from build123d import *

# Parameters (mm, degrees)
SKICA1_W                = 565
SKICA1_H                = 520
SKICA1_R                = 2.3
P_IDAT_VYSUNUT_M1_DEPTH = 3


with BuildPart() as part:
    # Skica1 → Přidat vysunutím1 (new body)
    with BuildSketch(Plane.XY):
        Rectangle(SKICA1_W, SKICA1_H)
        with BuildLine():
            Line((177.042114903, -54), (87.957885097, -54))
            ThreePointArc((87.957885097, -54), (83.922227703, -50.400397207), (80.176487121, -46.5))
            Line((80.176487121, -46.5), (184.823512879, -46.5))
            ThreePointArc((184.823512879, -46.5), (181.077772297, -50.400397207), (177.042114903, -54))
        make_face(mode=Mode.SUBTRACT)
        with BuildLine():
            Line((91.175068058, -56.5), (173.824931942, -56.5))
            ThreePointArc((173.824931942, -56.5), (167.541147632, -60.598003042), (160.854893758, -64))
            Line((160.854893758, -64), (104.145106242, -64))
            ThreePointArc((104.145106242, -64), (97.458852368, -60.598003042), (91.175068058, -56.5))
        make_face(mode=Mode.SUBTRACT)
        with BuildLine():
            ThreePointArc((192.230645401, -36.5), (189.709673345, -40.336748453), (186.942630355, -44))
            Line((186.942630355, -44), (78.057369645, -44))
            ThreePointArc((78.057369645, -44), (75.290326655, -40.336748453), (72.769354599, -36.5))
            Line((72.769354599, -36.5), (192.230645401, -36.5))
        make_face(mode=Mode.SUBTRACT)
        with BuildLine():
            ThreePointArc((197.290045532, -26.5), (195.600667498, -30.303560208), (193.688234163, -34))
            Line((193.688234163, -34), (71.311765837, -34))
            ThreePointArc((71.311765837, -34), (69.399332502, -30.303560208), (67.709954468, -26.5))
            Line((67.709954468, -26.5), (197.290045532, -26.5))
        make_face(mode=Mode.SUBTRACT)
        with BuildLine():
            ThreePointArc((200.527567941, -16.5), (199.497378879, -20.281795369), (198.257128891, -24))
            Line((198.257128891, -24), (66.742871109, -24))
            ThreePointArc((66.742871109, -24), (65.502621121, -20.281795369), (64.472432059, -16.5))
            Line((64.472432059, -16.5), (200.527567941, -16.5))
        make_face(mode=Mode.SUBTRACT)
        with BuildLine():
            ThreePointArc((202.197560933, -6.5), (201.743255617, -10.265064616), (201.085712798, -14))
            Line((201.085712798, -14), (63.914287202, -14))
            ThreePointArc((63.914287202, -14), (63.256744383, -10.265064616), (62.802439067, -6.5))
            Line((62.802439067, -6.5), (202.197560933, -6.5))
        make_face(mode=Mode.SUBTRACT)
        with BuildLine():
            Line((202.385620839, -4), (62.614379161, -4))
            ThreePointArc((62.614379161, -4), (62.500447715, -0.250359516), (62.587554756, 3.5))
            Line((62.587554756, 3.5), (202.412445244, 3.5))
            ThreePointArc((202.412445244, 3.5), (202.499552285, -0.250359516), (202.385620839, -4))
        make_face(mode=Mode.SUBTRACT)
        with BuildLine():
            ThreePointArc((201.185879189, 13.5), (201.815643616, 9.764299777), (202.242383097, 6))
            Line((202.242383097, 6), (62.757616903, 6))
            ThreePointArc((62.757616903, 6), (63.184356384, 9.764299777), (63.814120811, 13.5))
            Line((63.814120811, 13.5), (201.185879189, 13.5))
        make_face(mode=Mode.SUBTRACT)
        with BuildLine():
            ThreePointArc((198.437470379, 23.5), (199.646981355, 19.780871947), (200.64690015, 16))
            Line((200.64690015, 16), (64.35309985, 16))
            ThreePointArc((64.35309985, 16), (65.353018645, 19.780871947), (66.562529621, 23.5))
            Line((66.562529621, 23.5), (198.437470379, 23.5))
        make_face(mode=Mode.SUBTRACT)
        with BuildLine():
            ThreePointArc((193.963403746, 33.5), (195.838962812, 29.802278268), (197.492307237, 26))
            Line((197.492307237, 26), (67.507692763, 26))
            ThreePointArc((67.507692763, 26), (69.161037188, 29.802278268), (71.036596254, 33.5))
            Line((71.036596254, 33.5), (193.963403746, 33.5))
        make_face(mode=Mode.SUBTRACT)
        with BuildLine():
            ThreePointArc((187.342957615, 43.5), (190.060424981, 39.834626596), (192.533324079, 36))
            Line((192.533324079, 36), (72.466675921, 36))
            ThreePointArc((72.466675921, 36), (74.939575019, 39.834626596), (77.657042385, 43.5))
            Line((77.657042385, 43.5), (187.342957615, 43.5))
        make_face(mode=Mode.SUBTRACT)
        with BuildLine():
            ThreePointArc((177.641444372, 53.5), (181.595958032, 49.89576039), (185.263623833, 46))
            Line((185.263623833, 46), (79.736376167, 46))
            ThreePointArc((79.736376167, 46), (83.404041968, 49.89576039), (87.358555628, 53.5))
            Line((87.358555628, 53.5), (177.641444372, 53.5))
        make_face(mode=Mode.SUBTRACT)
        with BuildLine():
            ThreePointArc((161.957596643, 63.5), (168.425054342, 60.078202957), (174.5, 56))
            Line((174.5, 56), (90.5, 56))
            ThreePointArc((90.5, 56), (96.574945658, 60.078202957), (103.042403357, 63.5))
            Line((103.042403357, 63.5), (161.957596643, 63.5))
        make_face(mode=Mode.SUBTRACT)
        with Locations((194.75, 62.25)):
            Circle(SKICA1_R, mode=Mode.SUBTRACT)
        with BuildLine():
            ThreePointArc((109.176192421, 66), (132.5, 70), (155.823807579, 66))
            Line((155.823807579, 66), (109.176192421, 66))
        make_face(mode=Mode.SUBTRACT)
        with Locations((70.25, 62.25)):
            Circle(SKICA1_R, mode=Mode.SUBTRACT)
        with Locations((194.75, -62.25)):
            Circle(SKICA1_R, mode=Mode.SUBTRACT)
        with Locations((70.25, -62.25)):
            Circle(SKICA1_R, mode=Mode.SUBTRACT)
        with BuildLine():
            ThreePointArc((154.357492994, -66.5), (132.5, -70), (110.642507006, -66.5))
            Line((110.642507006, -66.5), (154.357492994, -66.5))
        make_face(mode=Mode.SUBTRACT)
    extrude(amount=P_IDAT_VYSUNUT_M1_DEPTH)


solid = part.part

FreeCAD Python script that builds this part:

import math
import FreeCAD as App
import Part
import Sketcher

V = App.Vector

doc = App.newDocument("Part")
body = doc.addObject("PartDesign::Body", "Body")

# Sketch on XY plane
sketch1 = body.newObject("Sketcher::SketchObject", "Sketch")
sketch1.AttachmentSupport = (doc.getObject("XY_Plane"), [""])
sketch1.MapMode = "FlatFace"
sketch1.addGeometry([
    Part.LineSegment(V(-282.5, 260, 0), V(-282.5, -260, 0)),  # 0
    Part.LineSegment(V(-282.5, -260, 0), V(282.5, -260, 0)),  # 1
    Part.LineSegment(V(282.5, -260, 0), V(282.5, 260, 0)),  # 2
    Part.LineSegment(V(282.5, 260, 0), V(-282.5, 260, 0)),  # 3
    Part.Circle(V(70.2, -62.2, 0), V(0, 0, 1), 2.3),  # 4
    Part.LineSegment(V(110.6, -66.5, 0), V(154.4, -66.5, 0)),  # 5
    Part.ArcOfCircle(Part.Circle(V(132.5, 0, 0), V(0, 0, 1), 70), math.radians(-108), math.radians(-72)),  # 6
    Part.ArcOfCircle(Part.Circle(V(132.5, 0, 0), V(0, 0, 1), 70), math.radians(-126.18), math.radians(-113.9)),  # 7
    Part.LineSegment(V(91.2, -56.5, 0), V(173.8, -56.5, 0)),  # 8
    Part.ArcOfCircle(Part.Circle(V(132.5, 0, 0), V(0, 0, 1), 70), math.radians(-66.1), math.radians(-53.82)),  # 9
    Part.LineSegment(V(160.9, -64, 0), V(104.1, -64, 0)),  # 10
    Part.ArcOfCircle(Part.Circle(V(132.5, 0, 0), V(0, 0, 1), 70), math.radians(-50.48), math.radians(-41.63)),  # 11
    Part.LineSegment(V(177, -54, 0), V(88, -54, 0)),  # 12
    Part.ArcOfCircle(Part.Circle(V(132.5, 0, 0), V(0, 0, 1), 70), math.radians(-138.37), math.radians(-129.52)),  # 13
    Part.LineSegment(V(80.2, -46.5, 0), V(184.8, -46.5, 0)),  # 14
    Part.LineSegment(V(72.8, -36.5, 0), V(192.2, -36.5, 0)),  # 15
    Part.ArcOfCircle(Part.Circle(V(132.5, 0, 0), V(0, 0, 1), 70), math.radians(-38.94), math.radians(-31.43)),  # 16
    Part.LineSegment(V(186.9, -44, 0), V(78.1, -44, 0)),  # 17
    Part.ArcOfCircle(Part.Circle(V(132.5, 0, 0), V(0, 0, 1), 70), math.radians(-148.57), math.radians(-141.06)),  # 18
    Part.LineSegment(V(67.7, -26.5, 0), V(197.3, -26.5, 0)),  # 19
    Part.ArcOfCircle(Part.Circle(V(132.5, 0, 0), V(0, 0, 1), 70), math.radians(-29.06), math.radians(-22.25)),  # 20
    Part.LineSegment(V(193.7, -34, 0), V(71.3, -34, 0)),  # 21
    Part.ArcOfCircle(Part.Circle(V(132.5, 0, 0), V(0, 0, 1), 70), math.radians(-157.75), math.radians(-150.94)),  # 22
    Part.LineSegment(V(64.5, -16.5, 0), V(200.5, -16.5, 0)),  # 23
    Part.ArcOfCircle(Part.Circle(V(132.5, 0, 0), V(0, 0, 1), 70), math.radians(-20.05), math.radians(-13.63)),  # 24
    Part.LineSegment(V(198.3, -24, 0), V(66.7, -24, 0)),  # 25
    Part.ArcOfCircle(Part.Circle(V(132.5, 0, 0), V(0, 0, 1), 70), math.radians(-166.37), math.radians(-159.95)),  # 26
    Part.LineSegment(V(62.8, -6.5, 0), V(202.2, -6.5, 0)),  # 27
    Part.ArcOfCircle(Part.Circle(V(132.5, 0, 0), V(0, 0, 1), 70), math.radians(-11.54), math.radians(-5.33)),  # 28
    Part.LineSegment(V(201.1, -14, 0), V(63.9, -14, 0)),  # 29
    Part.ArcOfCircle(Part.Circle(V(132.5, 0, 0), V(0, 0, 1), 70), math.radians(-174.67), math.radians(-168.46)),  # 30
    Part.ArcOfCircle(Part.Circle(V(132.5, 0, 0), V(0, 0, 1), 70), math.radians(-3.28), math.radians(2.87)),  # 31
    Part.LineSegment(V(202.4, -4, 0), V(62.6, -4, 0)),  # 32
    Part.ArcOfCircle(Part.Circle(V(132.5, 0, 0), V(0, 0, 1), 70), math.radians(177.13), math.radians(183.28)),  # 33
    Part.LineSegment(V(62.6, 3.5, 0), V(202.4, 3.5, 0)),  # 34
    Part.Circle(V(194.8, -62.2, 0), V(0, 0, 1), 2.3),  # 35
    Part.LineSegment(V(63.8, 13.5, 0), V(201.2, 13.5, 0)),  # 36
    Part.ArcOfCircle(Part.Circle(V(132.5, 0, 0), V(0, 0, 1), 70), math.radians(4.92), math.radians(11.12)),  # 37
    Part.LineSegment(V(202.2, 6, 0), V(62.8, 6, 0)),  # 38
    Part.ArcOfCircle(Part.Circle(V(132.5, 0, 0), V(0, 0, 1), 70), math.radians(168.88), math.radians(175.08)),  # 39
    Part.LineSegment(V(66.6, 23.5, 0), V(198.4, 23.5, 0)),  # 40
    Part.ArcOfCircle(Part.Circle(V(132.5, 0, 0), V(0, 0, 1), 70), math.radians(13.21), math.radians(19.62)),  # 41
    Part.LineSegment(V(200.6, 16, 0), V(64.4, 16, 0)),  # 42
    Part.ArcOfCircle(Part.Circle(V(132.5, 0, 0), V(0, 0, 1), 70), math.radians(160.38), math.radians(166.79)),  # 43
    Part.LineSegment(V(71, 33.5, 0), V(194, 33.5, 0)),  # 44
    Part.ArcOfCircle(Part.Circle(V(132.5, 0, 0), V(0, 0, 1), 70), math.radians(21.8), math.radians(28.59)),  # 45
    Part.LineSegment(V(197.5, 26, 0), V(67.5, 26, 0)),  # 46
    Part.ArcOfCircle(Part.Circle(V(132.5, 0, 0), V(0, 0, 1), 70), math.radians(151.41), math.radians(158.2)),  # 47
    Part.Circle(V(70.2, 62.2, 0), V(0, 0, 1), 2.3),  # 48
    Part.LineSegment(V(77.7, 43.5, 0), V(187.3, 43.5, 0)),  # 49
    Part.ArcOfCircle(Part.Circle(V(132.5, 0, 0), V(0, 0, 1), 70), math.radians(30.95), math.radians(38.42)),  # 50
    Part.LineSegment(V(192.5, 36, 0), V(72.5, 36, 0)),  # 51
    Part.ArcOfCircle(Part.Circle(V(132.5, 0, 0), V(0, 0, 1), 70), math.radians(141.58), math.radians(149.05)),  # 52
    Part.LineSegment(V(87.4, 53.5, 0), V(177.6, 53.5, 0)),  # 53
    Part.ArcOfCircle(Part.Circle(V(132.5, 0, 0), V(0, 0, 1), 70), math.radians(41.08), math.radians(49.84)),  # 54
    Part.LineSegment(V(185.3, 46, 0), V(79.7, 46, 0)),  # 55
    Part.ArcOfCircle(Part.Circle(V(132.5, 0, 0), V(0, 0, 1), 70), math.radians(130.16), math.radians(138.92)),  # 56
    Part.LineSegment(V(103, 63.5, 0), V(162, 63.5, 0)),  # 57
    Part.ArcOfCircle(Part.Circle(V(132.5, 0, 0), V(0, 0, 1), 70), math.radians(53.13), math.radians(65.11)),  # 58
    Part.LineSegment(V(174.5, 56, 0), V(90.5, 56, 0)),  # 59
    Part.ArcOfCircle(Part.Circle(V(132.5, 0, 0), V(0, 0, 1), 70), math.radians(114.89), math.radians(126.87)),  # 60
    Part.LineSegment(V(155.8, 66, 0), V(109.2, 66, 0)),  # 61
    Part.ArcOfCircle(Part.Circle(V(132.5, 0, 0), V(0, 0, 1), 70), math.radians(71), math.radians(109)),  # 62
    Part.Circle(V(194.8, 62.2, 0), V(0, 0, 1), 2.3),  # 63
], False)
sketch1.addConstraint([
    Sketcher.Constraint("Coincident", 0, 2, 1, 1),
    Sketcher.Constraint("Coincident", 1, 2, 2, 1),
    Sketcher.Constraint("Coincident", 2, 2, 3, 1),
    Sketcher.Constraint("Coincident", 3, 2, 0, 1),
    Sketcher.Constraint("Coincident", 5, 1, 6, 1),
    Sketcher.Constraint("Coincident", 6, 2, 5, 2),
    Sketcher.Constraint("Coincident", 7, 1, 8, 1),
    Sketcher.Constraint("Coincident", 8, 2, 9, 2),
    Sketcher.Constraint("Coincident", 9, 1, 10, 1),
    Sketcher.Constraint("Coincident", 10, 2, 7, 2),
    Sketcher.Constraint("Coincident", 11, 1, 12, 1),
    Sketcher.Constraint("Coincident", 12, 2, 13, 2),
    Sketcher.Constraint("Coincident", 13, 1, 14, 1),
    Sketcher.Constraint("Coincident", 14, 2, 11, 2),
    Sketcher.Constraint("Coincident", 15, 2, 16, 2),
    Sketcher.Constraint("Coincident", 16, 1, 17, 1),
    Sketcher.Constraint("Coincident", 17, 2, 18, 2),
    Sketcher.Constraint("Coincident", 18, 1, 15, 1),
    Sketcher.Constraint("Coincident", 19, 2, 20, 2),
    Sketcher.Constraint("Coincident", 20, 1, 21, 1),
    Sketcher.Constraint("Coincident", 21, 2, 22, 2),
    Sketcher.Constraint("Coincident", 22, 1, 19, 1),
    Sketcher.Constraint("Coincident", 23, 2, 24, 2),
    Sketcher.Constraint("Coincident", 24, 1, 25, 1),
    Sketcher.Constraint("Coincident", 25, 2, 26, 2),
    Sketcher.Constraint("Coincident", 26, 1, 23, 1),
    Sketcher.Constraint("Coincident", 27, 2, 28, 2),
    Sketcher.Constraint("Coincident", 28, 1, 29, 1),
    Sketcher.Constraint("Coincident", 29, 2, 30, 2),
    Sketcher.Constraint("Coincident", 30, 1, 27, 1),
    Sketcher.Constraint("Coincident", 31, 1, 32, 1),
    Sketcher.Constraint("Coincident", 32, 2, 33, 2),
    Sketcher.Constraint("Coincident", 33, 1, 34, 1),
    Sketcher.Constraint("Coincident", 34, 2, 31, 2),
    Sketcher.Constraint("Coincident", 36, 2, 37, 2),
    Sketcher.Constraint("Coincident", 37, 1, 38, 1),
    Sketcher.Constraint("Coincident", 38, 2, 39, 2),
    Sketcher.Constraint("Coincident", 39, 1, 36, 1),
    Sketcher.Constraint("Coincident", 40, 2, 41, 2),
    Sketcher.Constraint("Coincident", 41, 1, 42, 1),
    Sketcher.Constraint("Coincident", 42, 2, 43, 2),
    Sketcher.Constraint("Coincident", 43, 1, 40, 1),
    Sketcher.Constraint("Coincident", 44, 2, 45, 2),
    Sketcher.Constraint("Coincident", 45, 1, 46, 1),
    Sketcher.Constraint("Coincident", 46, 2, 47, 2),
    Sketcher.Constraint("Coincident", 47, 1, 44, 1),
    Sketcher.Constraint("Coincident", 49, 2, 50, 2),
    Sketcher.Constraint("Coincident", 50, 1, 51, 1),
    Sketcher.Constraint("Coincident", 51, 2, 52, 2),
    Sketcher.Constraint("Coincident", 52, 1, 49, 1),
    Sketcher.Constraint("Coincident", 53, 2, 54, 2),
    Sketcher.Constraint("Coincident", 54, 1, 55, 1),
    Sketcher.Constraint("Coincident", 55, 2, 56, 2),
    Sketcher.Constraint("Coincident", 56, 1, 53, 1),
    Sketcher.Constraint("Coincident", 57, 2, 58, 2),
    Sketcher.Constraint("Coincident", 58, 1, 59, 1),
    Sketcher.Constraint("Coincident", 59, 2, 60, 2),
    Sketcher.Constraint("Coincident", 60, 1, 57, 1),
    Sketcher.Constraint("Coincident", 61, 1, 62, 1),
    Sketcher.Constraint("Coincident", 62, 2, 61, 2),
    Sketcher.Constraint("Vertical", 0),
    Sketcher.Constraint("Horizontal", 1),
    Sketcher.Constraint("Vertical", 2),
    Sketcher.Constraint("Horizontal", 3),
    Sketcher.Constraint("Horizontal", 5),
    Sketcher.Constraint("Horizontal", 8),
    Sketcher.Constraint("Horizontal", 10),
    Sketcher.Constraint("Horizontal", 12),
    Sketcher.Constraint("Horizontal", 14),
    Sketcher.Constraint("Horizontal", 15),
    Sketcher.Constraint("Horizontal", 17),
    Sketcher.Constraint("Horizontal", 19),
    Sketcher.Constraint("Horizontal", 21),
    Sketcher.Constraint("Horizontal", 23),
    Sketcher.Constraint("Horizontal", 25),
    Sketcher.Constraint("Horizontal", 27),
    Sketcher.Constraint("Horizontal", 29),
    Sketcher.Constraint("Horizontal", 32),
    Sketcher.Constraint("Horizontal", 34),
    Sketcher.Constraint("Horizontal", 36),
    Sketcher.Constraint("Horizontal", 38),
    Sketcher.Constraint("Horizontal", 40),
    Sketcher.Constraint("Horizontal", 42),
    Sketcher.Constraint("Horizontal", 44),
    Sketcher.Constraint("Horizontal", 46),
    Sketcher.Constraint("Horizontal", 49),
    Sketcher.Constraint("Horizontal", 51),
    Sketcher.Constraint("Horizontal", 53),
    Sketcher.Constraint("Horizontal", 55),
    Sketcher.Constraint("Horizontal", 57),
    Sketcher.Constraint("Horizontal", 59),
    Sketcher.Constraint("Horizontal", 61),
    Sketcher.Constraint("Coincident", 7, 3, 6, 3),
    Sketcher.Constraint("Coincident", 9, 3, 6, 3),
    Sketcher.Constraint("Coincident", 11, 3, 6, 3),
    Sketcher.Constraint("Coincident", 13, 3, 6, 3),
    Sketcher.Constraint("Coincident", 16, 3, 6, 3),
    Sketcher.Constraint("Coincident", 18, 3, 6, 3),
    Sketcher.Constraint("Coincident", 20, 3, 6, 3),
    Sketcher.Constraint("Coincident", 22, 3, 6, 3),
    Sketcher.Constraint("Coincident", 24, 3, 6, 3),
    Sketcher.Constraint("Coincident", 26, 3, 6, 3),
    Sketcher.Constraint("Coincident", 28, 3, 6, 3),
    Sketcher.Constraint("Coincident", 30, 3, 6, 3),
    Sketcher.Constraint("Coincident", 31, 3, 6, 3),
    Sketcher.Constraint("Coincident", 33, 3, 6, 3),
    Sketcher.Constraint("Coincident", 37, 3, 6, 3),
    Sketcher.Constraint("Coincident", 39, 3, 6, 3),
    Sketcher.Constraint("Coincident", 41, 3, 6, 3),
    Sketcher.Constraint("Coincident", 43, 3, 6, 3),
    Sketcher.Constraint("Coincident", 45, 3, 6, 3),
    Sketcher.Constraint("Coincident", 47, 3, 6, 3),
    Sketcher.Constraint("Coincident", 50, 3, 6, 3),
    Sketcher.Constraint("Coincident", 52, 3, 6, 3),
    Sketcher.Constraint("Coincident", 54, 3, 6, 3),
    Sketcher.Constraint("Coincident", 56, 3, 6, 3),
    Sketcher.Constraint("Coincident", 58, 3, 6, 3),
    Sketcher.Constraint("Coincident", 60, 3, 6, 3),
    Sketcher.Constraint("Coincident", 62, 3, 6, 3),
    Sketcher.Constraint("Equal", 6, 7),
    Sketcher.Constraint("Equal", 7, 9),
    Sketcher.Constraint("Equal", 9, 11),
    Sketcher.Constraint("Equal", 11, 13),
    Sketcher.Constraint("Equal", 13, 16),
    Sketcher.Constraint("Equal", 16, 18),
    Sketcher.Constraint("Equal", 18, 20),
    Sketcher.Constraint("Equal", 20, 22),
    Sketcher.Constraint("Equal", 22, 24),
    Sketcher.Constraint("Equal", 24, 26),
    Sketcher.Constraint("Equal", 26, 28),
    Sketcher.Constraint("Equal", 28, 30),
    Sketcher.Constraint("Equal", 30, 31),
    Sketcher.Constraint("Equal", 31, 33),
    Sketcher.Constraint("Equal", 4, 35),
    Sketcher.Constraint("Equal", 33, 37),
    Sketcher.Constraint("Equal", 37, 39),
    Sketcher.Constraint("Equal", 39, 41),
    Sketcher.Constraint("Equal", 41, 43),
    Sketcher.Constraint("Equal", 43, 45),
    Sketcher.Constraint("Equal", 45, 47),
    Sketcher.Constraint("Equal", 35, 48),
    Sketcher.Constraint("Equal", 47, 50),
    Sketcher.Constraint("Equal", 50, 52),
    Sketcher.Constraint("Equal", 52, 54),
    Sketcher.Constraint("Equal", 54, 56),
    Sketcher.Constraint("Equal", 56, 58),
    Sketcher.Constraint("Equal", 58, 60),
    Sketcher.Constraint("Equal", 60, 62),
    Sketcher.Constraint("Equal", 48, 63),
    Sketcher.Constraint("Symmetric", 0, 2, 2, 2, -1, 1),
    Sketcher.Constraint("Symmetric", 4, 3, 48, 3, -1),
    Sketcher.Constraint("Symmetric", 35, 3, 63, 3, -1),
    Sketcher.Constraint("PointOnObject", 6, 3, -1),
    Sketcher.Constraint("Horizontal", 4, 3, 35, 3),
    Sketcher.Constraint("Radius", 6, 70.0),
    Sketcher.Constraint("Diameter", 4, 4.6),
    Sketcher.Constraint("DistanceX", 1, 1, 1, 2, 565.0),
    Sketcher.Constraint("DistanceX", 59, 2, 59, 1, 84.0),
    Sketcher.Constraint("DistanceY", 0, 2, 0, 1, 520.0),
    Sketcher.Constraint("DistanceY", 9, 1, -1, 1, 64.0),
    Sketcher.Constraint("DistanceY", 11, 1, -1, 1, 54.0),
    Sketcher.Constraint("DistanceY", 16, 1, -1, 1, 44.0),
    Sketcher.Constraint("DistanceY", 20, 1, -1, 1, 34.0),
    Sketcher.Constraint("DistanceY", 24, 1, -1, 1, 24.0),
    Sketcher.Constraint("DistanceY", 28, 1, -1, 1, 14.0),
    Sketcher.Constraint("DistanceY", 31, 1, -1, 1, 4.0),
    Sketcher.Constraint("DistanceY", -1, 1, 37, 1, 6.0),
    Sketcher.Constraint("DistanceY", -1, 1, 41, 1, 16.0),
    Sketcher.Constraint("DistanceY", -1, 1, 45, 1, 26.0),
    Sketcher.Constraint("DistanceY", -1, 1, 50, 1, 36.0),
    Sketcher.Constraint("DistanceY", -1, 1, 54, 1, 46.0),
    Sketcher.Constraint("DistanceY", -1, 1, 61, 1, 66.0),
    Sketcher.Constraint("DistanceX", -1, 1, 6, 3, 132.5),
    Sketcher.Constraint("DistanceY", 5, 1, -1, 1, 66.5),
    Sketcher.Constraint("DistanceY", 7, 1, -1, 1, 56.5),
    Sketcher.Constraint("DistanceY", 13, 1, -1, 1, 46.5),
    Sketcher.Constraint("DistanceY", 15, 2, -1, 1, 36.5),
    Sketcher.Constraint("DistanceY", 19, 2, -1, 1, 26.5),
    Sketcher.Constraint("DistanceY", 23, 2, -1, 1, 16.5),
    Sketcher.Constraint("DistanceY", 27, 2, -1, 1, 6.5),
    Sketcher.Constraint("DistanceY", -1, 1, 33, 1, 3.5),
    Sketcher.Constraint("DistanceY", -1, 1, 36, 2, 13.5),
    Sketcher.Constraint("DistanceY", -1, 1, 40, 2, 23.5),
    Sketcher.Constraint("DistanceY", -1, 1, 44, 2, 33.5),
    Sketcher.Constraint("DistanceY", -1, 1, 49, 2, 43.5),
    Sketcher.Constraint("DistanceY", -1, 1, 53, 2, 53.5),
    Sketcher.Constraint("DistanceY", -1, 1, 57, 2, 63.5),
    Sketcher.Constraint("DistanceX", -1, 1, 4, 3, 70.25),
    Sketcher.Constraint("DistanceY", 4, 3, -1, 1, 62.25),
    Sketcher.Constraint("DistanceX", -1, 1, 35, 3, 194.75),
])
pad1 = body.newObject("PartDesign::Pad", "Pad")
pad1.Profile = sketch1
pad1.Length = 3

doc.recompute()
